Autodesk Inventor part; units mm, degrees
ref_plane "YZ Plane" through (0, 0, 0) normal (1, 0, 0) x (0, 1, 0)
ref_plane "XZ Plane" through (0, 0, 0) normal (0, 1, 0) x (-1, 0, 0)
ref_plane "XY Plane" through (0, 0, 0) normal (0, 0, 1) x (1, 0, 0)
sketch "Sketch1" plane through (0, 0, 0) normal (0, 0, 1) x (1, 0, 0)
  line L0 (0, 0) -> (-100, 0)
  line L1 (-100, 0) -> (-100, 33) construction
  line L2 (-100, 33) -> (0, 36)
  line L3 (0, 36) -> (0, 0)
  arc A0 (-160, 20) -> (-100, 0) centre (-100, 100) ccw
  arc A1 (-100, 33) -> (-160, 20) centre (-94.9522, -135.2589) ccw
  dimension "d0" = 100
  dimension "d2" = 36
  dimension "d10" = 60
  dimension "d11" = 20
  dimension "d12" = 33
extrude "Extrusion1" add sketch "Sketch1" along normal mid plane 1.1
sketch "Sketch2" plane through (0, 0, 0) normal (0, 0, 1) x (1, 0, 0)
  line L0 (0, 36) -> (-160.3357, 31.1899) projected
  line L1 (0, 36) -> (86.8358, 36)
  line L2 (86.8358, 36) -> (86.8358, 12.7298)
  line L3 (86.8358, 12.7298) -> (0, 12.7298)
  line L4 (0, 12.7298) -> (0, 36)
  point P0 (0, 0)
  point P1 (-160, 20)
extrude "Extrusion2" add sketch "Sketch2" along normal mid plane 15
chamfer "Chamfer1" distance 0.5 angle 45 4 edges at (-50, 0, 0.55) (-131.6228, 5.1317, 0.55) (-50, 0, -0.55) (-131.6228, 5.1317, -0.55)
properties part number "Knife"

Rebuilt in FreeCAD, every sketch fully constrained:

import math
import FreeCAD as App
import Part
import Sketcher

V = App.Vector
Q = App.Units.Quantity


def edges_at(feature, points):
    """Names of the edges that pass closest to the given points."""
    edges = feature.Shape.Edges
    near = lambda p: min(range(len(edges)), key=lambda i: edges[i].distToShape(Part.Vertex(*p))[0])
    return sorted({f"Edge{near(p) + 1}" for p in points})

doc = App.newDocument("Part")
body = doc.addObject("PartDesign::Body", "Body")

# Sketch on XY plane
sketch1 = body.newObject("Sketcher::SketchObject", "Sketch")
sketch1.AttachmentSupport = (doc.getObject("XY_Plane"), [""])
sketch1.MapMode = "FlatFace"
sketch1.addGeometry([
    Part.LineSegment(V(-100, 0, 0), V(0, 0, 0)),  # 0
    Part.LineSegment(V(0, 0, 0), V(0, 36, 0)),  # 1
    Part.LineSegment(V(0, 36, 0), V(-100, 33, 0)),  # 2
    Part.ArcOfCircle(Part.Circle(V(-94.9522, -135.2589, 0), V(0, 0, 1), 168.3346), math.radians(91.718369), math.radians(112.731901)),  # 3
    Part.ArcOfCircle(Part.Circle(V(-100, 100, 0), V(0, 0, 1), 100), math.radians(-126.869898), math.radians(-90)),  # 4
], False)
sketch1.addConstraint([
    Sketcher.Constraint("Coincident", 0, 2, 1, 1),
    Sketcher.Constraint("Coincident", 1, 2, 2, 1),
    Sketcher.Constraint("Tangent", 2, 2, 3, 1),
    Sketcher.Constraint("Coincident", 3, 2, 4, 1),
    Sketcher.Constraint("Tangent", 4, 2, 0, 1),
    Sketcher.Constraint("Horizontal", 0),
    Sketcher.Constraint("Vertical", 1),
    Sketcher.Constraint("Coincident", 0, 2, -1, 1),
    Sketcher.Constraint("Vertical", 4, 3, 2, 2),
    Sketcher.Constraint("Radius", 4, Q("100 mm")),
    Sketcher.Constraint("DistanceX", 0, 1, 0, 2, Q("100 mm")),
    Sketcher.Constraint("DistanceY", 1, 1, 1, 2, Q("36 mm")),
    Sketcher.Constraint("DistanceY", -1, 1, 2, 2, Q("33 mm")),
    Sketcher.Constraint("Radius", 3, Q("168.3346 mm")),
])
pad1 = body.newObject("PartDesign::Pad", "Pad")
pad1.Profile = sketch1
pad1.Length = 1.1
pad1.Midplane = True

# Sketch on XY plane
sketch2 = body.newObject("Sketcher::SketchObject", "Sketch001")
sketch2.AttachmentSupport = (doc.getObject("XY_Plane"), [""])
sketch2.MapMode = "FlatFace"
sketch2.addGeometry([
    Part.LineSegment(V(86.8358, 36, 0), V(0, 36, 0)),
    Part.LineSegment(V(0, 36, 0), V(0, 12.7298, 0)),
    Part.LineSegment(V(0, 12.7298, 0), V(86.8358, 12.7298, 0)),
    Part.LineSegment(V(86.8358, 12.7298, 0), V(86.8358, 36, 0)),
], False)
sketch2.addConstraint([
    Sketcher.Constraint("Coincident", 0, 2, 1, 1),
    Sketcher.Constraint("Coincident", 1, 2, 2, 1),
    Sketcher.Constraint("Coincident", 2, 2, 3, 1),
    Sketcher.Constraint("Coincident", 3, 2, 0, 1),
    Sketcher.Constraint("Horizontal", 0),
    Sketcher.Constraint("Vertical", 1),
    Sketcher.Constraint("Horizontal", 2),
    Sketcher.Constraint("Vertical", 3),
    Sketcher.Constraint("PointOnObject", 0, 2, -2),
    Sketcher.Constraint("DistanceY", -1, 1, 0, 2, Q("36 mm")),
    Sketcher.Constraint("DistanceX", 0, 2, 0, 1, Q("86.8358 mm")),
    Sketcher.Constraint("DistanceY", 1, 2, 1, 1, Q("23.2702 mm")),
])
pad2 = body.newObject("PartDesign::Pad", "Pad001")
pad2.Profile = sketch2
pad2.Length = 15
pad2.Midplane = True
doc.recompute()

chamfer = body.newObject("PartDesign::Chamfer", "Chamfer")
chamfer.Base = (pad2, edges_at(pad2, [
    (-50, 0, 0.55),
    (-131.623, 5.132, 0.55),
    (-50, 0, -0.55),
    (-131.623, 5.132, -0.55),
]))
chamfer.Size = 0.5

doc.recompute()
